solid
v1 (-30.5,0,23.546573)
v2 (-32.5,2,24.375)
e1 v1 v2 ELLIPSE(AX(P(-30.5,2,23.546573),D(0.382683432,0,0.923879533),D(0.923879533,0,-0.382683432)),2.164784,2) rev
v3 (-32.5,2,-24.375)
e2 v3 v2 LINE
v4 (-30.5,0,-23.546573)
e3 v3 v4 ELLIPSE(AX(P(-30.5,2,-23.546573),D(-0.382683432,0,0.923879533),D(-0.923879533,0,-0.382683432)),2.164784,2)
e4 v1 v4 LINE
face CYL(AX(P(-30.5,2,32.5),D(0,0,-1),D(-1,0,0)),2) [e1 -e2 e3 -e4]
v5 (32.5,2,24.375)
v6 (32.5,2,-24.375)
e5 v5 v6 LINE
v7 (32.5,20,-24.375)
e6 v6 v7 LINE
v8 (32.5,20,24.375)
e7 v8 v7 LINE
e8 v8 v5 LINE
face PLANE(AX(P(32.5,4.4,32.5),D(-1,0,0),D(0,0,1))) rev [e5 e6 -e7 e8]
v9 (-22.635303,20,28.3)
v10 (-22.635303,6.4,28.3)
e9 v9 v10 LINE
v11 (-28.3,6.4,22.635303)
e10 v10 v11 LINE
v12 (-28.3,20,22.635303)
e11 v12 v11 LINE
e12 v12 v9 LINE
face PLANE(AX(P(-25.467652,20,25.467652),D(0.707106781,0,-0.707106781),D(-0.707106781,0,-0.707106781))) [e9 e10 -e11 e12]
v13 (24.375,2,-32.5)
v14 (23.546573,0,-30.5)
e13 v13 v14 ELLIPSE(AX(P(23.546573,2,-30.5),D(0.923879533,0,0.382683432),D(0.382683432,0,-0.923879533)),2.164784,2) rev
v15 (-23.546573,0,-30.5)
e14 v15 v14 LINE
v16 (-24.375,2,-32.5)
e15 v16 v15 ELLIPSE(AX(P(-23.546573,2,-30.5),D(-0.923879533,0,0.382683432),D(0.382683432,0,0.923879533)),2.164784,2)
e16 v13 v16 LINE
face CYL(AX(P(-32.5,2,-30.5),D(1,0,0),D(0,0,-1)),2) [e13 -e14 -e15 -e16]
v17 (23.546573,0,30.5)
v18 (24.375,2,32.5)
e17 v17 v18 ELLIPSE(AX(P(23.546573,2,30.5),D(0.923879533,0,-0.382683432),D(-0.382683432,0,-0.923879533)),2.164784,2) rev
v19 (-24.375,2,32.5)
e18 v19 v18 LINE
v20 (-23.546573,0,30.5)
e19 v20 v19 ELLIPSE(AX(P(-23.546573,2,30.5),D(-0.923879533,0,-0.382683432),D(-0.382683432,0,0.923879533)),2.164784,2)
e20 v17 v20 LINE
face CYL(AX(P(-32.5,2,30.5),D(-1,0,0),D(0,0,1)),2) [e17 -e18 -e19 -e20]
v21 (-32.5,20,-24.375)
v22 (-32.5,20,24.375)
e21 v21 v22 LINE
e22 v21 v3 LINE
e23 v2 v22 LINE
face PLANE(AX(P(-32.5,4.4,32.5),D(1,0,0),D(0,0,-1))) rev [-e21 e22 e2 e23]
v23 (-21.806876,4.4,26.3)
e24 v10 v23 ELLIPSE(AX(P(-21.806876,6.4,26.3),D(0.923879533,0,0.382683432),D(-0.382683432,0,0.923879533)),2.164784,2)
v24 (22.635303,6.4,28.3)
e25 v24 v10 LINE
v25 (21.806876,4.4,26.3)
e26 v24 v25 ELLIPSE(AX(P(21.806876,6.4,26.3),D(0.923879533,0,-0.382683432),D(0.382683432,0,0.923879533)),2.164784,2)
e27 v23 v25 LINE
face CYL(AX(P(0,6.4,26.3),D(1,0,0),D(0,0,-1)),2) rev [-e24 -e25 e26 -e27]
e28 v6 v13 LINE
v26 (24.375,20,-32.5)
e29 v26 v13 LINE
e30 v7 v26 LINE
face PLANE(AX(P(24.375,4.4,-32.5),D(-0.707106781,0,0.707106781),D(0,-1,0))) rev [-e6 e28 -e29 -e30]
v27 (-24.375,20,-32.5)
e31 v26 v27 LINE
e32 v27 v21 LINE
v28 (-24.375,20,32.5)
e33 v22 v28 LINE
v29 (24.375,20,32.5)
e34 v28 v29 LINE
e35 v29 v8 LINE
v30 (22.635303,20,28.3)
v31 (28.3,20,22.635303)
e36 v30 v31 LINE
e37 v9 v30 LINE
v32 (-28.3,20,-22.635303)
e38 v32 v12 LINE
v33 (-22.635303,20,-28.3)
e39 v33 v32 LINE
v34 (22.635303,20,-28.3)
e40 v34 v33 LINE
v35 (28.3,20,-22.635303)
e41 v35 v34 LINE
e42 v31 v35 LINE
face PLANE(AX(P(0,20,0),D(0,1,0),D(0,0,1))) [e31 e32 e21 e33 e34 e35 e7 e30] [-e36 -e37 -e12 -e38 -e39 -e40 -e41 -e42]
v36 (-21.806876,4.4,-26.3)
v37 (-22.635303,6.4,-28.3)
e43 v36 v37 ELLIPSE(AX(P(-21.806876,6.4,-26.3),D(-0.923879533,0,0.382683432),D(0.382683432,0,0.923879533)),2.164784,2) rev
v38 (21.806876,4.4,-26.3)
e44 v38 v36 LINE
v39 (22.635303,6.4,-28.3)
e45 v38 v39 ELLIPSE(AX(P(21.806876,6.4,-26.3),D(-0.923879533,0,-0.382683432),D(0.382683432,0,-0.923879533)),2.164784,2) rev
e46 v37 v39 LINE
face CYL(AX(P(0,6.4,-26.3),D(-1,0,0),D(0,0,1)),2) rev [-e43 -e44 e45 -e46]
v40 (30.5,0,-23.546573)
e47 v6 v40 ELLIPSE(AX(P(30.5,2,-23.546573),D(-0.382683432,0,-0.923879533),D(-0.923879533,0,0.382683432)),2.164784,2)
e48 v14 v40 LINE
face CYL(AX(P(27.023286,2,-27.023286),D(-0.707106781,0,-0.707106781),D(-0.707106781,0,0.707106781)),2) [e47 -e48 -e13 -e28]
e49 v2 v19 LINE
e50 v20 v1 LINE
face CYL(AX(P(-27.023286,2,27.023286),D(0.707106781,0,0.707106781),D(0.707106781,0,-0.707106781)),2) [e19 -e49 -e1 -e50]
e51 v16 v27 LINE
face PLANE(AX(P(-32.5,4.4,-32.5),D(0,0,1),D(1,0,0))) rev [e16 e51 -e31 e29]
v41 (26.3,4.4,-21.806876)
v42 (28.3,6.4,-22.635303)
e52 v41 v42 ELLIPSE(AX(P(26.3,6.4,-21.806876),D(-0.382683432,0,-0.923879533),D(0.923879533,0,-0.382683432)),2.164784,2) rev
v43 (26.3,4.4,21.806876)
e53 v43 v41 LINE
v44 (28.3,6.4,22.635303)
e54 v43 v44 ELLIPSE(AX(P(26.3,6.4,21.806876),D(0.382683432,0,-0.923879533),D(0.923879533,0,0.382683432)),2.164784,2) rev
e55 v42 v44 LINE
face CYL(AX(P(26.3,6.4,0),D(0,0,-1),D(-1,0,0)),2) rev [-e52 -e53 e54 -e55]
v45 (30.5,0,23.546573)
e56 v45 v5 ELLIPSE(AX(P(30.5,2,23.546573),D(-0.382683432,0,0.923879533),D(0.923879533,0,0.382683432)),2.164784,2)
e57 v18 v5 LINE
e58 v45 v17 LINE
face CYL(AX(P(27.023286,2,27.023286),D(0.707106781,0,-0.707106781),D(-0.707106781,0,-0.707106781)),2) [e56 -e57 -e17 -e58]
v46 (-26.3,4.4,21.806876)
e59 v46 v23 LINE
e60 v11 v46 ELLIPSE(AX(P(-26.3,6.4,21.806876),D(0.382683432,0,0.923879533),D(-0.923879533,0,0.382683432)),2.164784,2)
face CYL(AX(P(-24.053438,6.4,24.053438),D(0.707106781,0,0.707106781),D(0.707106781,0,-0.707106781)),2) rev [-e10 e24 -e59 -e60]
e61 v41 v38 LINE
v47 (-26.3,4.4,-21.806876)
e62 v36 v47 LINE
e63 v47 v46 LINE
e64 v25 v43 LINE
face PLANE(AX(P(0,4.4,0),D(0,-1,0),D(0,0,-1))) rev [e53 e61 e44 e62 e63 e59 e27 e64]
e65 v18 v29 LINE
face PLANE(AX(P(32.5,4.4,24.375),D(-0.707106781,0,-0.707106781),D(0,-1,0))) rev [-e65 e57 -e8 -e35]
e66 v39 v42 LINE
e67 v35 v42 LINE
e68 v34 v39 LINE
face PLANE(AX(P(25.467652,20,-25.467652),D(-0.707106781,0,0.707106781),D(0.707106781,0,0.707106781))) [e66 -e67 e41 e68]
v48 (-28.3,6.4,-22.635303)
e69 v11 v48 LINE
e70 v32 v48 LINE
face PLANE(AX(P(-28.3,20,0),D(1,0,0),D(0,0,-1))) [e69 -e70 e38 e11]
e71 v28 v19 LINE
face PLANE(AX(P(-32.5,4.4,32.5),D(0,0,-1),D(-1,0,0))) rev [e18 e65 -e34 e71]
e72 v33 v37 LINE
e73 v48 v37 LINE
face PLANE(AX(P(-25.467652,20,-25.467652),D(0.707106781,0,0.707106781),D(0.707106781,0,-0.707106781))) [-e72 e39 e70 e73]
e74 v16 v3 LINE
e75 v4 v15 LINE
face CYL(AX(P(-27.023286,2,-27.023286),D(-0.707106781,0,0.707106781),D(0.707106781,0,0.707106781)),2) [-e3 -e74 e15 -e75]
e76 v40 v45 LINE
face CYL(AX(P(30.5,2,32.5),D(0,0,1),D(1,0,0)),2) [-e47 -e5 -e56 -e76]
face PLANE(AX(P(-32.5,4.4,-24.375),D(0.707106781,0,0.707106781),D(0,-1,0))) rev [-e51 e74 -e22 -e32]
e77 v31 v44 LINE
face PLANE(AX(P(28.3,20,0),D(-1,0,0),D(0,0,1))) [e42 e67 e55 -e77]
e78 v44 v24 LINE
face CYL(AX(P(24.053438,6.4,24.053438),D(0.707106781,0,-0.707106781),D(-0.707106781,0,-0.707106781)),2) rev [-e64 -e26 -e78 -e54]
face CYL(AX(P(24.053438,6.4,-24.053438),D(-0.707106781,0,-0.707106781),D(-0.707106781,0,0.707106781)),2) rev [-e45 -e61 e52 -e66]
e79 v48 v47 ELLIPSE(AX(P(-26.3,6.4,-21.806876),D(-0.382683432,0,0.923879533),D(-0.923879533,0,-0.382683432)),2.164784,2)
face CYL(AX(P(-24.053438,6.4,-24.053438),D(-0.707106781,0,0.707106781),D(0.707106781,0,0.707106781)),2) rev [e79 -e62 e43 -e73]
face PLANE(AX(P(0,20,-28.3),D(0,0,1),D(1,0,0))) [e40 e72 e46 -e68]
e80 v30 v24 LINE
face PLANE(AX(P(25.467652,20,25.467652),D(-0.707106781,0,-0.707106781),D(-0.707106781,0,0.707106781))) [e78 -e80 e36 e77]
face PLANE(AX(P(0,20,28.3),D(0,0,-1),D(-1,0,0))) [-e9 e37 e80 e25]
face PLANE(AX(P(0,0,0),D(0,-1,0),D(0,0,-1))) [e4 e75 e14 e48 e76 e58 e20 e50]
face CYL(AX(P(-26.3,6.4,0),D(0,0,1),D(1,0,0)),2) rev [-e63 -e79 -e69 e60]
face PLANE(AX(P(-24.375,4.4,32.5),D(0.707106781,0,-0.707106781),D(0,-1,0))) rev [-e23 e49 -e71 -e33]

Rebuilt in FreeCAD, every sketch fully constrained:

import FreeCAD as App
import Part
import Sketcher
from FreeCAD import Vector
Q = App.Units.Quantity


def edges_at(feature, points):
    """Names of the edges that pass closest to the given points."""
    edges = feature.Shape.Edges
    near = lambda p: min(range(len(edges)), key=lambda i: edges[i].distToShape(Part.Vertex(*p))[0])
    return sorted({f"Edge{near(p) + 1}" for p in points})


def add_polygon(sketch, points):
    """Adds a closed chain of lines whose ends are joined by coincident constraints."""
    first, n = sketch.GeometryCount, len(points)
    for a, b in zip(points, points[1:] + points[:1]):
        sketch.addGeometry(Part.LineSegment(App.Vector(*a, 0), App.Vector(*b, 0)), False)
    for i in range(n):
        sketch.addConstraint(Sketcher.Constraint("Coincident", first + i, 2, first + (i + 1) % n, 1))

doc = App.newDocument("Part")
params = doc.addObject("Spreadsheet::Sheet", "Params")
for row, (alias, value) in enumerate([
    ("sketch1_width", "65 mm"),
    ("pad1_length", "4.4 mm"),
    ("chamfer_size", "8.125 mm"),
    ("sketch2_width", "48.75 mm"),
    ("pad2_length", "15.6 mm"),
    ("fillet_radius", "2 mm"),
], start=1):
    params.set(f"A{row}", alias)
    params.set(f"B{row}", "=" + value)
    params.setAlias(f"B{row}", alias)

body = doc.addObject("PartDesign::Body", "Body")

# Sketch on XZ plane
sketch1 = body.newObject("Sketcher::SketchObject", "Sketch")
sketch1.AttachmentSupport = (doc.getObject("XZ_Plane"), [""])
sketch1.MapMode = "FlatFace"
add_polygon(sketch1, [(-32.5, -32.5), (-32.5, 32.5), (32.5, 32.5), (32.5, -32.5)])  # lines 0-3
sketch1.addConstraint(Sketcher.Constraint("Vertical", 0))
sketch1.addConstraint(Sketcher.Constraint("Horizontal", 1))
sketch1.addConstraint(Sketcher.Constraint("Vertical", 2))
sketch1.addConstraint(Sketcher.Constraint("Horizontal", 3))
sketch1.addConstraint(Sketcher.Constraint("Symmetric", 0, 2, 2, 2, -1, 1))
sketch1.addConstraint(Sketcher.Constraint("Equal", 3, 0))
sketch1.addConstraint(Sketcher.Constraint("DistanceX", 1, 1, 1, 2, Q("65 mm")))
sketch1.setExpression("Constraints[10]", "Params.sketch1_width")
pad1 = body.newObject("PartDesign::Pad", "Pad")
pad1.Profile = sketch1
pad1.setExpression("Length", "Params.pad1_length")
pad1.Reversed = True
doc.recompute()

chamfer = body.newObject("PartDesign::Chamfer", "Chamfer")
chamfer.Base = (pad1, edges_at(pad1, [
    (32.5, 2.2, 32.5),
    (-32.5, 2.2, 32.5),
    (-32.5, 2.2, -32.5),
    (32.5, 2.2, -32.5),
]))
chamfer.setExpression("Size", "Params.chamfer_size")

# Sketch on XZ plane
sketch2 = body.newObject("Sketcher::SketchObject", "Sketch001")
sketch2.AttachmentSupport = (doc.getObject("XZ_Plane"), [""])
sketch2.MapMode = "FlatFace"
sketch2.AttachmentOffset = App.Placement(Vector(0, 0, -4.4), App.Rotation())
add_polygon(sketch2, [(32.5, -24.375), (24.375, -32.5), (-24.375, -32.5), (-32.5, -24.375), (-32.5, 24.375), (-24.375, 32.5), (24.375, 32.5), (32.5, 24.375)])  # lines 0-7
add_polygon(sketch2, [(-28.3, -22.635303), (-22.635303, -28.3), (22.635303, -28.3), (28.3, -22.635303), (28.3, 22.635303), (22.635303, 28.3), (-22.635303, 28.3), (-28.3, 22.635303)])  # lines 8-15
sketch2.addConstraint(Sketcher.Constraint("Horizontal", 1))
sketch2.addConstraint(Sketcher.Constraint("Vertical", 3))
sketch2.addConstraint(Sketcher.Constraint("Horizontal", 5))
sketch2.addConstraint(Sketcher.Constraint("Vertical", 7))
sketch2.addConstraint(Sketcher.Constraint("Horizontal", 9))
sketch2.addConstraint(Sketcher.Constraint("Vertical", 11))
sketch2.addConstraint(Sketcher.Constraint("Horizontal", 13))
sketch2.addConstraint(Sketcher.Constraint("Vertical", 15))
sketch2.addConstraint(Sketcher.Constraint("Symmetric", 0, 2, 4, 2, -1, 1))
sketch2.addConstraint(Sketcher.Constraint("Symmetric", 2, 2, 6, 2, -1, 1))
sketch2.addConstraint(Sketcher.Constraint("Symmetric", 8, 2, 12, 2, -1, 1))
sketch2.addConstraint(Sketcher.Constraint("Symmetric", 10, 2, 14, 2, -1, 1))
sketch2.addConstraint(Sketcher.Constraint("Perpendicular", 0, 2))
sketch2.addConstraint(Sketcher.Constraint("Perpendicular", 2, 4))
sketch2.addConstraint(Sketcher.Constraint("Perpendicular", 4, 6))
sketch2.addConstraint(Sketcher.Constraint("Parallel", 6, 8))
sketch2.addConstraint(Sketcher.Constraint("Perpendicular", 8, 10))
sketch2.addConstraint(Sketcher.Constraint("Perpendicular", 10, 12))
sketch2.addConstraint(Sketcher.Constraint("Perpendicular", 12, 14))
sketch2.addConstraint(Sketcher.Constraint("Horizontal", 3, 2, 6, 2))
sketch2.addConstraint(Sketcher.Constraint("Horizontal", 11, 2, 14, 2))
sketch2.addConstraint(Sketcher.Constraint("Vertical", 1, 2, 4, 2))
sketch2.addConstraint(Sketcher.Constraint("Equal", 5, 3))
sketch2.addConstraint(Sketcher.Constraint("Equal", 13, 11))
sketch2.addConstraint(Sketcher.Constraint("DistanceY", 1, 2, 4, 2, Q("65 mm")))
sketch2.addConstraint(Sketcher.Constraint("DistanceX", 1, 2, 1, 1, Q("48.75 mm")))
sketch2.addConstraint(Sketcher.Constraint("DistanceY", 8, 2, -1, 1, Q("28.3 mm")))
sketch2.addConstraint(Sketcher.Constraint("Distance", 8, Q("8.011091 mm")))
sketch2.setExpression("Constraints[41]", "Params.sketch2_width")
pad2 = body.newObject("PartDesign::Pad", "Pad001")
pad2.Profile = sketch2
pad2.setExpression("Length", "Params.pad2_length")
pad2.Reversed = True
doc.recompute()

fillet = body.newObject("PartDesign::Fillet", "Fillet")
fillet.Base = (pad2, edges_at(pad2, [
    (-32.5, 0, 0),
    (32.5, 0, 0),
    (0, 0, 32.5),
    (0, 0, -32.5),
    (-28.438, 0, 28.438),
    (28.438, 0, 28.438),
    (28.438, 0, -28.438),
    (-28.438, 0, -28.438),
    (-25.468, 4.4, -25.468),
    (-28.3, 4.4, 0),
    (-25.468, 4.4, 25.468),
    (0, 4.4, 28.3),
    (25.468, 4.4, 25.468),
    (28.3, 4.4, 0),
    (25.468, 4.4, -25.468),
    (0, 4.4, -28.3),
]))
fillet.setExpression("Radius", "Params.fillet_radius")

doc.recompute()
